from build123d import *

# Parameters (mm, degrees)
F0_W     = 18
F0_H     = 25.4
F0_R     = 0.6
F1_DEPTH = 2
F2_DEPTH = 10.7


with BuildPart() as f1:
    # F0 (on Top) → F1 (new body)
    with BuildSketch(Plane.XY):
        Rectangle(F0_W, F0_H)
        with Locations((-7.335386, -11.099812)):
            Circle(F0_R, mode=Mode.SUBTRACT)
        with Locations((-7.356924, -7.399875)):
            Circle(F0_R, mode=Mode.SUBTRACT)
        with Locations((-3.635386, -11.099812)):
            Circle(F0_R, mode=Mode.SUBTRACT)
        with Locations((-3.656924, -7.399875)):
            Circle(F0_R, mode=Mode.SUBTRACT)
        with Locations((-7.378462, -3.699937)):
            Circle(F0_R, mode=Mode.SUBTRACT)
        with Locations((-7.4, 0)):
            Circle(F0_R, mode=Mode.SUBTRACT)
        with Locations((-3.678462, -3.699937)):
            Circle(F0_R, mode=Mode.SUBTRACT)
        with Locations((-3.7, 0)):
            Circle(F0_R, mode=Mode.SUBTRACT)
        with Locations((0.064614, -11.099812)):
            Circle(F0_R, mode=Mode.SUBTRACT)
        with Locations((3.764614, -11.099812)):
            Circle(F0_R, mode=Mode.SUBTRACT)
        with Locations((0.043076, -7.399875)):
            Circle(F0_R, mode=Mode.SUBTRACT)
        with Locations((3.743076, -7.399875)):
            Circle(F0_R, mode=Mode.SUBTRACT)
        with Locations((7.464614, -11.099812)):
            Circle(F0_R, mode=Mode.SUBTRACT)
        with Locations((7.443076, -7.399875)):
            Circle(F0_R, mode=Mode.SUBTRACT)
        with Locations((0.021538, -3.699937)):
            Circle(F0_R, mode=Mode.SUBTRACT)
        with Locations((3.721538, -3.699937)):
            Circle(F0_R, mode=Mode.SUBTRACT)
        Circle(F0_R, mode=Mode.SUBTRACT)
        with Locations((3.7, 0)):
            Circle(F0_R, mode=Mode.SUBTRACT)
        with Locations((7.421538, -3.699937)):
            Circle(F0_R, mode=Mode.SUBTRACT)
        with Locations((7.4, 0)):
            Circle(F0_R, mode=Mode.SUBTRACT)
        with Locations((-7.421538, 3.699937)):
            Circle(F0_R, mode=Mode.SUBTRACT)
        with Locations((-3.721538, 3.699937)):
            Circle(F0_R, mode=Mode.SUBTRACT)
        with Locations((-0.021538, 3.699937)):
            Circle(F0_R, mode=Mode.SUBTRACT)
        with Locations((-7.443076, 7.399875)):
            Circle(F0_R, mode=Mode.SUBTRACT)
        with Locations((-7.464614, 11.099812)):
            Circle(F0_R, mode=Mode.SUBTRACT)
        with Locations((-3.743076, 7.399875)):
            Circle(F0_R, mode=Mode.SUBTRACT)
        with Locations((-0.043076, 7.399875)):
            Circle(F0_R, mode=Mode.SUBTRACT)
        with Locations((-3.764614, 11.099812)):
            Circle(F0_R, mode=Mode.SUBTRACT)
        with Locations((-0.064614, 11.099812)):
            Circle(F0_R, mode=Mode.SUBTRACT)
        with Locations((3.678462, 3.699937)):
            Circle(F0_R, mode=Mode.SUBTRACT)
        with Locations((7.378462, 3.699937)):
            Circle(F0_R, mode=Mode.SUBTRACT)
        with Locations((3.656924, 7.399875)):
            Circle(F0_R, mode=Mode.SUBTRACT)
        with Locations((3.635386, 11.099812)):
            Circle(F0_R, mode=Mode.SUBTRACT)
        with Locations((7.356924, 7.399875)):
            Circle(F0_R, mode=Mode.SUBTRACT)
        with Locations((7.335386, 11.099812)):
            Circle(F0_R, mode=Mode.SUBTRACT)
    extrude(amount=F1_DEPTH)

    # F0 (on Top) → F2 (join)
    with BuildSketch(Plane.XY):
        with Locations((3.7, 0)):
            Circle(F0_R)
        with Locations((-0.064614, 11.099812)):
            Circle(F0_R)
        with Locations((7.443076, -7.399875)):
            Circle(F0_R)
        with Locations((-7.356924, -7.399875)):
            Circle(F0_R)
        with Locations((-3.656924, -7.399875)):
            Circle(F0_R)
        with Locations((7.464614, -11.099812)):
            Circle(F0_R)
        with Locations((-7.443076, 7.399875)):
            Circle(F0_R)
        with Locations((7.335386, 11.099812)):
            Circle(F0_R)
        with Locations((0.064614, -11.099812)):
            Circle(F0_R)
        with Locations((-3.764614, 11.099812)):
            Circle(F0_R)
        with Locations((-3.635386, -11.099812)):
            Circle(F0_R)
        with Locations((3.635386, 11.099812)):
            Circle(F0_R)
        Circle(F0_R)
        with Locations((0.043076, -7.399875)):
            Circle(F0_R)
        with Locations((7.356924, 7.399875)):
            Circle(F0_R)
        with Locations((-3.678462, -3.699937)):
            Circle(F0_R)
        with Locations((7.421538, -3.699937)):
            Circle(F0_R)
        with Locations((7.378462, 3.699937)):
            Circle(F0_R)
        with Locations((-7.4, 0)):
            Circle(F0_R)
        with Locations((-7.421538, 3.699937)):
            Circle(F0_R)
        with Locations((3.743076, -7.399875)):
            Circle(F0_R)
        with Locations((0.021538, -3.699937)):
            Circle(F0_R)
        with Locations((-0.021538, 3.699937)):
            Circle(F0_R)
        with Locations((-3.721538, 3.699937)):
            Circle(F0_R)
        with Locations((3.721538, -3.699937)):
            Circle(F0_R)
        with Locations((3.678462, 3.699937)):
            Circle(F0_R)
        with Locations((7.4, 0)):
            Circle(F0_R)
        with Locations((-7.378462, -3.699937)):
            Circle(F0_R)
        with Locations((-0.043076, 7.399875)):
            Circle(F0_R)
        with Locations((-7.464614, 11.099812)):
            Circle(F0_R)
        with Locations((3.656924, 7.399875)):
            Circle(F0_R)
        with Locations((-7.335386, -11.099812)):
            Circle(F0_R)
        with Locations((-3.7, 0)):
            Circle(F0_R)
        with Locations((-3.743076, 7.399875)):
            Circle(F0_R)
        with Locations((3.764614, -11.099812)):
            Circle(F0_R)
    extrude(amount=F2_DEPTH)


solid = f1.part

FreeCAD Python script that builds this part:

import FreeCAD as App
import Part
import Sketcher
from FreeCAD import Vector


def add_polygon(sketch, points):
    """Adds a closed chain of lines whose ends are joined by coincident constraints."""
    first, n = sketch.GeometryCount, len(points)
    for a, b in zip(points, points[1:] + points[:1]):
        sketch.addGeometry(Part.LineSegment(App.Vector(*a, 0), App.Vector(*b, 0)), False)
    for i in range(n):
        sketch.addConstraint(Sketcher.Constraint("Coincident", first + i, 2, first + (i + 1) % n, 1))

doc = App.newDocument("Part")
params = doc.addObject("Spreadsheet::Sheet", "Params")
for row, (alias, value) in enumerate([
    ("sketch1_diameter", "1.2 mm"),
    ("sketch1_width", "18 mm"),
    ("sketch1_height", "25.4 mm"),
    ("pad1_length", "2 mm"),
    ("sketch2_diameter", "1.2 mm"),
    ("pad2_length", "10.7 mm"),
], start=1):
    params.set(f"A{row}", alias)
    params.set(f"B{row}", "=" + value)
    params.setAlias(f"B{row}", alias)

body = doc.addObject("PartDesign::Body", "Body")

# Sketch on XY plane
sketch1 = body.newObject("Sketcher::SketchObject", "Sketch")
sketch1.AttachmentSupport = (doc.getObject("XY_Plane"), [""])
sketch1.MapMode = "FlatFace"
add_polygon(sketch1, [(-9, 12.7), (-9, -12.7), (9, -12.7), (9, 12.7)])  # lines 0-3
sketch1.addGeometry(Part.Circle(Vector(-7.3, -11.1, 0), Vector(0, 0, 1), 0.6), False)  # 4
sketch1.addGeometry(Part.Circle(Vector(-7.4, -7.4, 0), Vector(0, 0, 1), 0.6), False)  # 5
sketch1.addGeometry(Part.Circle(Vector(-3.6, -11.1, 0), Vector(0, 0, 1), 0.6), False)  # 6
sketch1.addGeometry(Part.Circle(Vector(-3.7, -7.4, 0), Vector(0, 0, 1), 0.6), False)  # 7
sketch1.addGeometry(Part.Circle(Vector(-7.4, -3.7, 0), Vector(0, 0, 1), 0.6), False)  # 8
sketch1.addGeometry(Part.Circle(Vector(-3.7, -3.7, 0), Vector(0, 0, 1), 0.6), False)  # 9
sketch1.addGeometry(Part.Circle(Vector(0.1, -11.1, 0), Vector(0, 0, 1), 0.6), False)  # 10
sketch1.addGeometry(Part.Circle(Vector(3.8, -11.1, 0), Vector(0, 0, 1), 0.6), False)  # 11
sketch1.addGeometry(Part.Circle(Vector(0, -7.4, 0), Vector(0, 0, 1), 0.6), False)  # 12
sketch1.addGeometry(Part.Circle(Vector(3.7, -7.4, 0), Vector(0, 0, 1), 0.6), False)  # 13
sketch1.addGeometry(Part.Circle(Vector(7.5, -11.1, 0), Vector(0, 0, 1), 0.6), False)  # 14
sketch1.addGeometry(Part.Circle(Vector(7.4, -7.4, 0), Vector(0, 0, 1), 0.6), False)  # 15
sketch1.addGeometry(Part.Circle(Vector(0, -3.7, 0), Vector(0, 0, 1), 0.6), False)  # 16
sketch1.addGeometry(Part.Circle(Vector(3.7, -3.7, 0), Vector(0, 0, 1), 0.6), False)  # 17
sketch1.addGeometry(Part.Circle(Vector(7.4, -3.7, 0), Vector(0, 0, 1), 0.6), False)  # 18
sketch1.addGeometry(Part.Circle(Vector(-7.4, 0, 0), Vector(0, 0, 1), 0.6), False)  # 19
sketch1.addGeometry(Part.Circle(Vector(-7.4, 3.7, 0), Vector(0, 0, 1), 0.6), False)  # 20
sketch1.addGeometry(Part.Circle(Vector(-3.7, 0, 0), Vector(0, 0, 1), 0.6), False)  # 21
sketch1.addGeometry(Part.Circle(Vector(-3.7, 3.7, 0), Vector(0, 0, 1), 0.6), False)  # 22
sketch1.addGeometry(Part.Circle(Vector(0, 3.7, 0), Vector(0, 0, 1), 0.6), False)  # 23
sketch1.addGeometry(Part.Circle(Vector(-7.4, 7.4, 0), Vector(0, 0, 1), 0.6), False)  # 24
sketch1.addGeometry(Part.Circle(Vector(-7.5, 11.1, 0), Vector(0, 0, 1), 0.6), False)  # 25
sketch1.addGeometry(Part.Circle(Vector(-3.7, 7.4, 0), Vector(0, 0, 1), 0.6), False)  # 26
sketch1.addGeometry(Part.Circle(Vector(0, 7.4, 0), Vector(0, 0, 1), 0.6), False)  # 27
sketch1.addGeometry(Part.Circle(Vector(-3.8, 11.1, 0), Vector(0, 0, 1), 0.6), False)  # 28
sketch1.addGeometry(Part.Circle(Vector(-0.1, 11.1, 0), Vector(0, 0, 1), 0.6), False)  # 29
sketch1.addGeometry(Part.Circle(Vector(0, 0, 0), Vector(0, 0, 1), 0.6), False)  # 30
sketch1.addGeometry(Part.Circle(Vector(3.7, 0, 0), Vector(0, 0, 1), 0.6), False)  # 31
sketch1.addGeometry(Part.Circle(Vector(3.7, 3.7, 0), Vector(0, 0, 1), 0.6), False)  # 32
sketch1.addGeometry(Part.Circle(Vector(7.4, 0, 0), Vector(0, 0, 1), 0.6), False)  # 33
sketch1.addGeometry(Part.Circle(Vector(7.4, 3.7, 0), Vector(0, 0, 1), 0.6), False)  # 34
sketch1.addGeometry(Part.Circle(Vector(3.7, 7.4, 0), Vector(0, 0, 1), 0.6), False)  # 35
sketch1.addGeometry(Part.Circle(Vector(3.6, 11.1, 0), Vector(0, 0, 1), 0.6), False)  # 36
sketch1.addGeometry(Part.Circle(Vector(7.4, 7.4, 0), Vector(0, 0, 1), 0.6), False)  # 37
sketch1.addGeometry(Part.Circle(Vector(7.3, 11.1, 0), Vector(0, 0, 1), 0.6), False)  # 38
sketch1.addConstraint([
    Sketcher.Constraint("Vertical", 0),
    Sketcher.Constraint("Horizontal", 1),
    Sketcher.Constraint("Vertical", 2),
    Sketcher.Constraint("Horizontal", 3),
    Sketcher.Constraint("Coincident", 30, 3, -1, 1),
    Sketcher.Constraint("Equal", 4, 5),
    Sketcher.Constraint("Equal", 5, 6),
    Sketcher.Constraint("Equal", 6, 7),
    Sketcher.Constraint("Equal", 7, 8),
    Sketcher.Constraint("Equal", 8, 9),
    Sketcher.Constraint("Equal", 9, 10),
    Sketcher.Constraint("Equal", 10, 11),
    Sketcher.Constraint("Equal", 11, 12),
    Sketcher.Constraint("Equal", 12, 13),
    Sketcher.Constraint("Equal", 13, 14),
    Sketcher.Constraint("Equal", 14, 15),
    Sketcher.Constraint("Equal", 15, 16),
    Sketcher.Constraint("Equal", 16, 17),
    Sketcher.Constraint("Equal", 17, 18),
    Sketcher.Constraint("Equal", 18, 19),
    Sketcher.Constraint("Equal", 19, 20),
    Sketcher.Constraint("Equal", 20, 21),
    Sketcher.Constraint("Equal", 21, 22),
    Sketcher.Constraint("Equal", 22, 23),
    Sketcher.Constraint("Equal", 23, 24),
    Sketcher.Constraint("Equal", 24, 25),
    Sketcher.Constraint("Equal", 25, 26),
    Sketcher.Constraint("Equal", 26, 27),
    Sketcher.Constraint("Equal", 27, 28),
    Sketcher.Constraint("Equal", 28, 29),
    Sketcher.Constraint("Equal", 29, 30),
    Sketcher.Constraint("Equal", 30, 31),
    Sketcher.Constraint("Equal", 31, 32),
    Sketcher.Constraint("Equal", 32, 33),
    Sketcher.Constraint("Equal", 33, 34),
    Sketcher.Constraint("Equal", 34, 35),
    Sketcher.Constraint("Equal", 35, 36),
    Sketcher.Constraint("Equal", 36, 37),
    Sketcher.Constraint("Equal", 37, 38),
    Sketcher.Constraint("Symmetric", 18, 3, 20, 3, -1, 1),
    Sketcher.Constraint("Symmetric", 17, 3, 22, 3, -1, 1),
    Sketcher.Constraint("Symmetric", 16, 3, 23, 3, -1, 1),
    Sketcher.Constraint("Symmetric", 15, 3, 24, 3, -1, 1),
    Sketcher.Constraint("Symmetric", 14, 3, 25, 3, -1, 1),
    Sketcher.Constraint("Symmetric", 13, 3, 26, 3, -1, 1),
    Sketcher.Constraint("Symmetric", 12, 3, 27, 3, -1, 1),
    Sketcher.Constraint("Symmetric", 11, 3, 28, 3, -1, 1),
    Sketcher.Constraint("Symmetric", 10, 3, 29, 3, -1, 1),
    Sketcher.Constraint("Symmetric", 21, 3, 31, 3, -1, 1),
    Sketcher.Constraint("Symmetric", 9, 3, 32, 3, -1, 1),
    Sketcher.Constraint("Symmetric", 19, 3, 33, 3, -1, 1),
    Sketcher.Constraint("Symmetric", 8, 3, 34, 3, -1, 1),
    Sketcher.Constraint("Symmetric", 7, 3, 35, 3, -1, 1),
    Sketcher.Constraint("Symmetric", 6, 3, 36, 3, -1, 1),
    Sketcher.Constraint("Symmetric", 5, 3, 37, 3, -1, 1),
    Sketcher.Constraint("Symmetric", 4, 3, 38, 3, -1, 1),
    Sketcher.Constraint("Symmetric", 0, 2, 2, 2, -1, 1),
    Sketcher.Constraint("PointOnObject", 19, 3, -1),
    Sketcher.Constraint("PointOnObject", 21, 3, -1),
    Sketcher.Constraint("Horizontal", 4, 3, 6, 3),
    Sketcher.Constraint("Horizontal", 5, 3, 7, 3),
    Sketcher.Constraint("Horizontal", 8, 3, 9, 3),
    Sketcher.Constraint("Horizontal", 6, 3, 10, 3),
    Sketcher.Constraint("Horizontal", 10, 3, 11, 3),
    Sketcher.Constraint("Horizontal", 7, 3, 12, 3),
    Sketcher.Constraint("Horizontal", 12, 3, 13, 3),
    Sketcher.Constraint("Horizontal", 11, 3, 14, 3),
    Sketcher.Constraint("Horizontal", 13, 3, 15, 3),
    Sketcher.Constraint("Horizontal", 9, 3, 16, 3),
    Sketcher.Constraint("Horizontal", 16, 3, 17, 3),
    Sketcher.Constraint("Horizontal", 17, 3, 18, 3),
    Sketcher.Constraint("Diameter", 4, 1.2),
    Sketcher.Constraint("DistanceX", 1, 1, 1, 2, 18.0),
    Sketcher.Constraint("DistanceY", 0, 2, 0, 1, 25.4),
    Sketcher.Constraint("DistanceX", 19, 3, -1, 1, 7.4),
    Sketcher.Constraint("DistanceX", 21, 3, -1, 1, 3.7),
    Sketcher.Constraint("DistanceX", 4, 3, 6, 3, 3.7),
    Sketcher.Constraint("DistanceX", 5, 3, 7, 3, 3.7),
    Sketcher.Constraint("DistanceX", 8, 3, 9, 3, 3.7),
    Sketcher.Constraint("DistanceX", 6, 3, 10, 3, 3.7),
    Sketcher.Constraint("DistanceX", 10, 3, 11, 3, 3.7),
    Sketcher.Constraint("DistanceX", 7, 3, 12, 3, 3.7),
    Sketcher.Constraint("DistanceX", 12, 3, 13, 3, 3.7),
    Sketcher.Constraint("DistanceX", 11, 3, 14, 3, 3.7),
    Sketcher.Constraint("DistanceX", 13, 3, 15, 3, 3.7),
    Sketcher.Constraint("DistanceX", 9, 3, 16, 3, 3.7),
    Sketcher.Constraint("DistanceX", 16, 3, 17, 3, 3.7),
    Sketcher.Constraint("DistanceX", 17, 3, 18, 3, 3.7),
    Sketcher.Constraint("DistanceX", -1, 1, 16, 3, 0.021538),
    Sketcher.Constraint("DistanceX", 5, 3, 4, 3, 0.021538),
    Sketcher.Constraint("DistanceY", 5, 3, 8, 3, 3.699938),
    Sketcher.Constraint("DistanceX", 9, 3, 7, 3, 0.021538),
    Sketcher.Constraint("DistanceY", 4, 3, -1, 1, 11.099812),
    Sketcher.Constraint("DistanceY", 5, 3, -1, 1, 7.399875),
])
sketch1.setExpression("Constraints[75]", "Params.sketch1_diameter")
sketch1.setExpression("Constraints[76]", "Params.sketch1_width")
sketch1.setExpression("Constraints[77]", "Params.sketch1_height")
pad1 = body.newObject("PartDesign::Pad", "Pad")
pad1.Profile = sketch1
pad1.setExpression("Length", "Params.pad1_length")

# Sketch on XY plane
sketch2 = body.newObject("Sketcher::SketchObject", "Sketch001")
sketch2.AttachmentSupport = (doc.getObject("XY_Plane"), [""])
sketch2.MapMode = "FlatFace"
sketch2.addGeometry([
    Part.Circle(Vector(3.7, 0, 0), Vector(0, 0, 1), 0.6),  # 0
    Part.Circle(Vector(-0.1, 11.1, 0), Vector(0, 0, 1), 0.6),  # 1
    Part.Circle(Vector(7.4, -7.4, 0), Vector(0, 0, 1), 0.6),  # 2
    Part.Circle(Vector(-7.4, -7.4, 0), Vector(0, 0, 1), 0.6),  # 3
    Part.Circle(Vector(-3.7, -7.4, 0), Vector(0, 0, 1), 0.6),  # 4
    Part.Circle(Vector(7.5, -11.1, 0), Vector(0, 0, 1), 0.6),  # 5
    Part.Circle(Vector(-7.4, 7.4, 0), Vector(0, 0, 1), 0.6),  # 6
    Part.Circle(Vector(7.3, 11.1, 0), Vector(0, 0, 1), 0.6),  # 7
    Part.Circle(Vector(0.1, -11.1, 0), Vector(0, 0, 1), 0.6),  # 8
    Part.Circle(Vector(-3.8, 11.1, 0), Vector(0, 0, 1), 0.6),  # 9
    Part.Circle(Vector(-3.6, -11.1, 0), Vector(0, 0, 1), 0.6),  # 10
    Part.Circle(Vector(3.6, 11.1, 0), Vector(0, 0, 1), 0.6),  # 11
    Part.Circle(Vector(0, 0, 0), Vector(0, 0, 1), 0.6),  # 12
    Part.Circle(Vector(0, -7.4, 0), Vector(0, 0, 1), 0.6),  # 13
    Part.Circle(Vector(7.4, 7.4, 0), Vector(0, 0, 1), 0.6),  # 14
    Part.Circle(Vector(-3.7, -3.7, 0), Vector(0, 0, 1), 0.6),  # 15
    Part.Circle(Vector(7.4, -3.7, 0), Vector(0, 0, 1), 0.6),  # 16
    Part.Circle(Vector(7.4, 3.7, 0), Vector(0, 0, 1), 0.6),  # 17
    Part.Circle(Vector(-7.4, 0, 0), Vector(0, 0, 1), 0.6),  # 18
    Part.Circle(Vector(-7.4, 3.7, 0), Vector(0, 0, 1), 0.6),  # 19
    Part.Circle(Vector(3.7, -7.4, 0), Vector(0, 0, 1), 0.6),  # 20
    Part.Circle(Vector(0, -3.7, 0), Vector(0, 0, 1), 0.6),  # 21
    Part.Circle(Vector(0, 3.7, 0), Vector(0, 0, 1), 0.6),  # 22
    Part.Circle(Vector(-3.7, 3.7, 0), Vector(0, 0, 1), 0.6),  # 23
    Part.Circle(Vector(3.7, -3.7, 0), Vector(0, 0, 1), 0.6),  # 24
    Part.Circle(Vector(3.7, 3.7, 0), Vector(0, 0, 1), 0.6),  # 25
    Part.Circle(Vector(7.4, 0, 0), Vector(0, 0, 1), 0.6),  # 26
    Part.Circle(Vector(-7.4, -3.7, 0), Vector(0, 0, 1), 0.6),  # 27
    Part.Circle(Vector(0, 7.4, 0), Vector(0, 0, 1), 0.6),  # 28
    Part.Circle(Vector(-7.5, 11.1, 0), Vector(0, 0, 1), 0.6),  # 29
    Part.Circle(Vector(3.7, 7.4, 0), Vector(0, 0, 1), 0.6),  # 30
    Part.Circle(Vector(-7.3, -11.1, 0), Vector(0, 0, 1), 0.6),  # 31
    Part.Circle(Vector(-3.7, 0, 0), Vector(0, 0, 1), 0.6),  # 32
    Part.Circle(Vector(-3.7, 7.4, 0), Vector(0, 0, 1), 0.6),  # 33
    Part.Circle(Vector(3.8, -11.1, 0), Vector(0, 0, 1), 0.6),  # 34
], False)
sketch2.addConstraint([
    Sketcher.Constraint("Coincident", 12, 3, -1, 1),
    Sketcher.Constraint("Equal", 0, 1),
    Sketcher.Constraint("Equal", 1, 2),
    Sketcher.Constraint("Equal", 2, 3),
    Sketcher.Constraint("Equal", 3, 4),
    Sketcher.Constraint("Equal", 4, 5),
    Sketcher.Constraint("Equal", 5, 6),
    Sketcher.Constraint("Equal", 6, 7),
    Sketcher.Constraint("Equal", 7, 8),
    Sketcher.Constraint("Equal", 8, 9),
    Sketcher.Constraint("Equal", 9, 10),
    Sketcher.Constraint("Equal", 10, 11),
    Sketcher.Constraint("Equal", 11, 12),
    Sketcher.Constraint("Equal", 12, 13),
    Sketcher.Constraint("Equal", 13, 14),
    Sketcher.Constraint("Equal", 14, 15),
    Sketcher.Constraint("Equal", 15, 16),
    Sketcher.Constraint("Equal", 16, 17),
    Sketcher.Constraint("Equal", 17, 18),
    Sketcher.Constraint("Equal", 18, 19),
    Sketcher.Constraint("Equal", 19, 20),
    Sketcher.Constraint("Equal", 20, 21),
    Sketcher.Constraint("Equal", 21, 22),
    Sketcher.Constraint("Equal", 22, 23),
    Sketcher.Constraint("Equal", 23, 24),
    Sketcher.Constraint("Equal", 24, 25),
    Sketcher.Constraint("Equal", 25, 26),
    Sketcher.Constraint("Equal", 26, 27),
    Sketcher.Constraint("Equal", 27, 28),
    Sketcher.Constraint("Equal", 28, 29),
    Sketcher.Constraint("Equal", 29, 30),
    Sketcher.Constraint("Equal", 30, 31),
    Sketcher.Constraint("Equal", 31, 32),
    Sketcher.Constraint("Equal", 32, 33),
    Sketcher.Constraint("Equal", 33, 34),
    Sketcher.Constraint("Symmetric", 2, 3, 6, 3, -1, 1),
    Sketcher.Constraint("Symmetric", 1, 3, 8, 3, -1, 1),
    Sketcher.Constraint("Symmetric", 10, 3, 11, 3, -1, 1),
    Sketcher.Constraint("Symmetric", 3, 3, 14, 3, -1, 1),
    Sketcher.Constraint("Symmetric", 16, 3, 19, 3, -1, 1),
    Sketcher.Constraint("Symmetric", 21, 3, 22, 3, -1, 1),
    Sketcher.Constraint("Symmetric", 23, 3, 24, 3, -1, 1),
    Sketcher.Constraint("Symmetric", 15, 3, 25, 3, -1, 1),
    Sketcher.Constraint("Symmetric", 18, 3, 26, 3, -1, 1),
    Sketcher.Constraint("Symmetric", 17, 3, 27, 3, -1, 1),
    Sketcher.Constraint("Symmetric", 13, 3, 28, 3, -1, 1),
    Sketcher.Constraint("Symmetric", 5, 3, 29, 3, -1, 1),
    Sketcher.Constraint("Symmetric", 4, 3, 30, 3, -1, 1),
    Sketcher.Constraint("Symmetric", 7, 3, 31, 3, -1, 1),
    Sketcher.Constraint("Symmetric", 0, 3, 32, 3, -1, 1),
    Sketcher.Constraint("Symmetric", 20, 3, 33, 3, -1, 1),
    Sketcher.Constraint("Symmetric", 9, 3, 34, 3, -1, 1),
    Sketcher.Constraint("PointOnObject", 0, 3, -1),
    Sketcher.Constraint("PointOnObject", 18, 3, -1),
    Sketcher.Constraint("Horizontal", 2, 3, 3, 3),
    Sketcher.Constraint("Horizontal", 3, 3, 4, 3),
    Sketcher.Constraint("Horizontal", 1, 3, 7, 3),
    Sketcher.Constraint("Horizontal", 5, 3, 8, 3),
    Sketcher.Constraint("Horizontal", 7, 3, 9, 3),
    Sketcher.Constraint("Horizontal", 8, 3, 10, 3),
    Sketcher.Constraint("Horizontal", 4, 3, 13, 3),
    Sketcher.Constraint("Horizontal", 15, 3, 16, 3),
    Sketcher.Constraint("Horizontal", 17, 3, 19, 3),
    Sketcher.Constraint("Horizontal", 13, 3, 20, 3),
    Sketcher.Constraint("Horizontal", 16, 3, 21, 3),
    Sketcher.Constraint("Horizontal", 22, 3, 23, 3),
    Sketcher.Constraint("Diameter", 0, 1.2),
    Sketcher.Constraint("DistanceX", -1, 1, 0, 3, 3.7),
    Sketcher.Constraint("DistanceX", 18, 3, -1, 1, 7.4),
    Sketcher.Constraint("DistanceX", 3, 3, 2, 3, 14.8),
    Sketcher.Constraint("DistanceX", 3, 3, 4, 3, 3.7),
    Sketcher.Constraint("DistanceX", 1, 3, 7, 3, 7.4),
    Sketcher.Constraint("DistanceX", 8, 3, 5, 3, 7.4),
    Sketcher.Constraint("DistanceX", 9, 3, 1, 3, 3.7),
    Sketcher.Constraint("DistanceX", 10, 3, 8, 3, 3.7),
    Sketcher.Constraint("DistanceX", 4, 3, 13, 3, 3.7),
    Sketcher.Constraint("DistanceX", 20, 3, 2, 3, 3.7),
    Sketcher.Constraint("DistanceX", 15, 3, 21, 3, 3.7),
    Sketcher.Constraint("DistanceX", 22, 3, 17, 3, 7.4),
    Sketcher.Constraint("DistanceX", 19, 3, 22, 3, 7.4),
    Sketcher.Constraint("DistanceX", 23, 3, 22, 3, 3.7),
    Sketcher.Constraint("DistanceX", -1, 1, 21, 3, 0.021538),
    Sketcher.Constraint("DistanceX", 1, 3, 2, 3, 7.50769),
    Sketcher.Constraint("DistanceX", 2, 3, 5, 3, 0.021538),
    Sketcher.Constraint("DistanceY", 3, 3, 6, 3, 14.79975),
    Sketcher.Constraint("DistanceY", 4, 3, 15, 3, 3.699938),
    Sketcher.Constraint("DistanceY", -1, 1, 1, 3, 11.099812),
])
sketch2.setExpression("Constraints[66]", "Params.sketch2_diameter")
pad2 = body.newObject("PartDesign::Pad", "Pad001")
pad2.Profile = sketch2
pad2.setExpression("Length", "Params.pad2_length")

doc.recompute()
